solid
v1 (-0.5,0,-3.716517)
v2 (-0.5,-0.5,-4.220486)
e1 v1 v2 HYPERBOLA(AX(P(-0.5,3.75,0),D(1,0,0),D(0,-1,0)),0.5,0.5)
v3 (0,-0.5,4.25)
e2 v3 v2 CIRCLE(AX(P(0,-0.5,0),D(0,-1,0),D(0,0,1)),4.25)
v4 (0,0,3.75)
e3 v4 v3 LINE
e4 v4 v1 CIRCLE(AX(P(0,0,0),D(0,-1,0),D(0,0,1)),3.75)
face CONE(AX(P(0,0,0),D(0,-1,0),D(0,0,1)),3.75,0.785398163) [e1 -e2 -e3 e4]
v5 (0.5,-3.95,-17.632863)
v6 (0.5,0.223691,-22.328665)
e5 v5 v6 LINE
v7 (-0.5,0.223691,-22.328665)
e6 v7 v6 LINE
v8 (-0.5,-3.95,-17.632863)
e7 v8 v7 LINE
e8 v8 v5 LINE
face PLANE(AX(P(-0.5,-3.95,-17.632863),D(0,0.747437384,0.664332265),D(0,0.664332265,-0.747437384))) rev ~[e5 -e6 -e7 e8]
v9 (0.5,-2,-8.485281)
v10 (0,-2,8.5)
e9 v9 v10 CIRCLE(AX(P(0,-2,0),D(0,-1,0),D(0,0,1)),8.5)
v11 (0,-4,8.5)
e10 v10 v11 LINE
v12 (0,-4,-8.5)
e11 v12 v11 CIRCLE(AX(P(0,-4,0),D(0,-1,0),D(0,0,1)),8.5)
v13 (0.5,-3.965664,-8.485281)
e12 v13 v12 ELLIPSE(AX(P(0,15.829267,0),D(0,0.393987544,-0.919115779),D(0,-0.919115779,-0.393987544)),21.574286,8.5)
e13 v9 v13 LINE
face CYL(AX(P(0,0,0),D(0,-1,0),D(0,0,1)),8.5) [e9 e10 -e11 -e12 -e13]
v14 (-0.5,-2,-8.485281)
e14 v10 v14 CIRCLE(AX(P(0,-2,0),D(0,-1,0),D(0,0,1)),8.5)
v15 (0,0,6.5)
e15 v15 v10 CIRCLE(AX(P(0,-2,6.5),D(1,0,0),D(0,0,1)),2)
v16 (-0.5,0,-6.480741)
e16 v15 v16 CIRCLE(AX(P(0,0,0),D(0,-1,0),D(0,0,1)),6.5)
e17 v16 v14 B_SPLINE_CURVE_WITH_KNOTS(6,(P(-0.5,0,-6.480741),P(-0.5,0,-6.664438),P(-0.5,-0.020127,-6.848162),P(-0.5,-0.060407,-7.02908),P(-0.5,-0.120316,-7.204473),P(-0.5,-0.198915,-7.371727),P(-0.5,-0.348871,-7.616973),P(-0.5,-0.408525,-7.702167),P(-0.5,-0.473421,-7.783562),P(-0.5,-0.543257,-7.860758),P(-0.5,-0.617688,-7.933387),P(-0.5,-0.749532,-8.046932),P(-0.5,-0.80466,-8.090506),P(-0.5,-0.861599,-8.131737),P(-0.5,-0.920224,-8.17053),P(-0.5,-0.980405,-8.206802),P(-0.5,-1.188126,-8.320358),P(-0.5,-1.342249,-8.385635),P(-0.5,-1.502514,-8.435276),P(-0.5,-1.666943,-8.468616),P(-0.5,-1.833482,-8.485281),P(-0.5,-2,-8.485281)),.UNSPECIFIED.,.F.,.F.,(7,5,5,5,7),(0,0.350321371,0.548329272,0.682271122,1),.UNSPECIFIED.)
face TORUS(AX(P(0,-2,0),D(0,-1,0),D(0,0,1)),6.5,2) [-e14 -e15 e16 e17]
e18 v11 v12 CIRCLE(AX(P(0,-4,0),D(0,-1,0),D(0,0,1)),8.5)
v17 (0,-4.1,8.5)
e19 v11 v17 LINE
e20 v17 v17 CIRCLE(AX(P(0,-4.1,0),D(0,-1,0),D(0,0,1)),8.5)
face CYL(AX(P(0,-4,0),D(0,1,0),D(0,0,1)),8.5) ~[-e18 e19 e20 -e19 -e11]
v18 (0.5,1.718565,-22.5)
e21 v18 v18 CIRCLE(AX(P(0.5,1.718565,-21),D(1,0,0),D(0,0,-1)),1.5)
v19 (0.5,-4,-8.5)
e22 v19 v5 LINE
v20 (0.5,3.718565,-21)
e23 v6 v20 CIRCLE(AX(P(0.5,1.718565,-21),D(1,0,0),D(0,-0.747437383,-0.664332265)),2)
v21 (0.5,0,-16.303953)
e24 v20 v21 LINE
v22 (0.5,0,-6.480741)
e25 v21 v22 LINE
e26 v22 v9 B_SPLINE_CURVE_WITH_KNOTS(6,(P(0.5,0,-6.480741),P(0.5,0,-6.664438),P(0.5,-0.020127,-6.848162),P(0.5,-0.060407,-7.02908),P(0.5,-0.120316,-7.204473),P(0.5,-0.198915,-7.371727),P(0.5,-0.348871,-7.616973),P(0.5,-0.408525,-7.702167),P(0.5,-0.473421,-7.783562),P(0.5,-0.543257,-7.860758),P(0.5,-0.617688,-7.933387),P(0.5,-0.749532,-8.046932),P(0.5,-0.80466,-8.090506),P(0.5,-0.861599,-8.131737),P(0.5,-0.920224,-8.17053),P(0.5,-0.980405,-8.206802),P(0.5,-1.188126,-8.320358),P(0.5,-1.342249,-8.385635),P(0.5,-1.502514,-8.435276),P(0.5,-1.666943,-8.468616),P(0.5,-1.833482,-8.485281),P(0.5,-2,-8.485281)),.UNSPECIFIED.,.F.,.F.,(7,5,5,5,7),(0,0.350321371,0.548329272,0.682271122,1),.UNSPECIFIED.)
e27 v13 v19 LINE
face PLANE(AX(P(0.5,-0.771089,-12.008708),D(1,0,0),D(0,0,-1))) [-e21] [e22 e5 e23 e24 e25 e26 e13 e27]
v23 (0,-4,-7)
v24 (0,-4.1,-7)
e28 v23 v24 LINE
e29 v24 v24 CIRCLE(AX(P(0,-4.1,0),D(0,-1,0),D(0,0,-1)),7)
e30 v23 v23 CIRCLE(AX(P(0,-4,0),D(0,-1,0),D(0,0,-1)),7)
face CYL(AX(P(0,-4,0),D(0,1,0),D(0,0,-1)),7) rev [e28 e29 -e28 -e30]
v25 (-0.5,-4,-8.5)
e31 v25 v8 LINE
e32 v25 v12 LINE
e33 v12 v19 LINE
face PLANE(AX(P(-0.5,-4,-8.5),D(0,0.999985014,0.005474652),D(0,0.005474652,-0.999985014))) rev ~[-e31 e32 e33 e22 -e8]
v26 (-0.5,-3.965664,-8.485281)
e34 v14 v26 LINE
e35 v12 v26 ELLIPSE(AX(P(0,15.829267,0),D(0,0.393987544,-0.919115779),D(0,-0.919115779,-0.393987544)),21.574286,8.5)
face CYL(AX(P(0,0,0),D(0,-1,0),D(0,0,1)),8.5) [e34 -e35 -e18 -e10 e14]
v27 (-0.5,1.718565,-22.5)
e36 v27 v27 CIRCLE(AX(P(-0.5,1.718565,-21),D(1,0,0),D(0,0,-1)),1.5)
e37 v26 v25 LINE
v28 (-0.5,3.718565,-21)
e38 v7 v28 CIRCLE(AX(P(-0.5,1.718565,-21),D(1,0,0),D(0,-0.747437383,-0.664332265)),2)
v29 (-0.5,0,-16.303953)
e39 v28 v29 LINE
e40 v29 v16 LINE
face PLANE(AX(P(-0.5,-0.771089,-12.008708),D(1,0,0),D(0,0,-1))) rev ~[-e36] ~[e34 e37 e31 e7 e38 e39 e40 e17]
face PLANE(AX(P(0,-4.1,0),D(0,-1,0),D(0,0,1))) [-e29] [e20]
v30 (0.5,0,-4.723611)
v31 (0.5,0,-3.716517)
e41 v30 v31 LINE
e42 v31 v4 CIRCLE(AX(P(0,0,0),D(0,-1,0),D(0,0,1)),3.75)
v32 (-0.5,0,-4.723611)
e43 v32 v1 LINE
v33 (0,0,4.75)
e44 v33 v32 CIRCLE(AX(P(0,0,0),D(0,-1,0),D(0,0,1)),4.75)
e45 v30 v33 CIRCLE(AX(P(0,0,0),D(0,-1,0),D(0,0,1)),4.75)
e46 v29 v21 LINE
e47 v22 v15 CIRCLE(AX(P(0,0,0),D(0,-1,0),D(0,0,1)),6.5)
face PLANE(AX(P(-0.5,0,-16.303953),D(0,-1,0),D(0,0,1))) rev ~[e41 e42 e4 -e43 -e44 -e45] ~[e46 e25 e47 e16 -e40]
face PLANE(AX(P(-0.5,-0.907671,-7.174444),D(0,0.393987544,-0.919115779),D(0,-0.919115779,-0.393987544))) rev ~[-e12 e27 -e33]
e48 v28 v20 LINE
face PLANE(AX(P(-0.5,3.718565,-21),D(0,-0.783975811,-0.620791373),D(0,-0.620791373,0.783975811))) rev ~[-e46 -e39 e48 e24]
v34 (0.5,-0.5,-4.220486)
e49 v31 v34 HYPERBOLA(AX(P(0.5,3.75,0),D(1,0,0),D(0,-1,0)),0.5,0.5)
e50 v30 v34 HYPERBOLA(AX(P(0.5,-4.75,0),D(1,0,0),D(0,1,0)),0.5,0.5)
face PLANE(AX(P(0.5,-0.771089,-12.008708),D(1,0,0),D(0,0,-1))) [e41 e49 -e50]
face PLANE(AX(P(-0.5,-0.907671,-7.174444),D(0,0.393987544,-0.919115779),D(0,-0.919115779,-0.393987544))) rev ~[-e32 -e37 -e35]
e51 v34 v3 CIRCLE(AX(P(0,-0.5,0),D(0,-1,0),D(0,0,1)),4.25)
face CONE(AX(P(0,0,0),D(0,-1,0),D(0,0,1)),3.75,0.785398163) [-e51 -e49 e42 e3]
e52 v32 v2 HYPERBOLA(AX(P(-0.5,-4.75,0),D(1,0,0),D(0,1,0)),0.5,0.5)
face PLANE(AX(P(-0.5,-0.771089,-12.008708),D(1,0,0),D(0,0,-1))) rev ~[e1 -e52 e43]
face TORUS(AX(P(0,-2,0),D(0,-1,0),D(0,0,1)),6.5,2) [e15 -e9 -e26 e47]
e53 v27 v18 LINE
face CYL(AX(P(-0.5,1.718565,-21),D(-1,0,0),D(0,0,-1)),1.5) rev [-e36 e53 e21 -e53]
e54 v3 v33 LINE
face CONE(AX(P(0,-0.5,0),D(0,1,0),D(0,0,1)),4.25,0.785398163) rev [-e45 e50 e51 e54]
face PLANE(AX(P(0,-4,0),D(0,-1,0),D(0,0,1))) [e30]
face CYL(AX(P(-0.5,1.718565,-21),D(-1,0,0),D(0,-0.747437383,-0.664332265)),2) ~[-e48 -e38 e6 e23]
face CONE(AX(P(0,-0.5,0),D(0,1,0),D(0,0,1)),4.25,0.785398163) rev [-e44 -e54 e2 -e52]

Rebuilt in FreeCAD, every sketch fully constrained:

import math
import FreeCAD as App
import Part
import Sketcher
from FreeCAD import Vector


def edges_at(feature, points):
    """Names of the edges that pass closest to the given points."""
    edges = feature.Shape.Edges
    near = lambda p: min(range(len(edges)), key=lambda i: edges[i].distToShape(Part.Vertex(*p))[0])
    return sorted({f"Edge{near(p) + 1}" for p in points})

doc = App.newDocument("Part")
body = doc.addObject("PartDesign::Body", "Body")

# Sketch on YZ plane
sketch1 = doc.addObject("Sketcher::SketchObject", "Sketch")
body.addObject(sketch1)
sketch1.AttachmentSupport = (doc.YZ_Plane, [""])
sketch1.MapMode = "FlatFace"
sketch1.addGeometry([
    Part.LineSegment(Vector(0, 0, 0), Vector(0, 3.8, 0)),  # 0
    Part.LineSegment(Vector(0, 3.8, 0), Vector(-0.5, 4.2, 0)),  # 1
    Part.LineSegment(Vector(-0.5, 4.2, 0), Vector(0, 4.8, 0)),  # 2
    Part.LineSegment(Vector(0, 4.8, 0), Vector(0, 8.5, 0)),  # 3
    Part.LineSegment(Vector(0, 8.5, 0), Vector(-4, 8.5, 0)),  # 4
    Part.LineSegment(Vector(-4, 8.5, 0), Vector(-4, 0, 0)),  # 5
    Part.LineSegment(Vector(-4, 0, 0), Vector(0, 0, 0)),  # 6
], False)
sketch1.addConstraint([
    Sketcher.Constraint("Coincident", 0, 2, 1, 1),
    Sketcher.Constraint("Coincident", 1, 2, 2, 1),
    Sketcher.Constraint("Coincident", 2, 2, 3, 1),
    Sketcher.Constraint("Coincident", 3, 2, 4, 1),
    Sketcher.Constraint("Coincident", 4, 2, 5, 1),
    Sketcher.Constraint("Coincident", 5, 2, 6, 1),
    Sketcher.Constraint("Coincident", 6, 2, 0, 1),
    Sketcher.Constraint("Vertical", 0),
    Sketcher.Constraint("Vertical", 3),
    Sketcher.Constraint("Horizontal", 4),
    Sketcher.Constraint("Vertical", 5),
    Sketcher.Constraint("Horizontal", 6),
    Sketcher.Constraint("Coincident", 6, 2, -1, 1),
    Sketcher.Constraint("PointOnObject", 2, 2, -2),
    Sketcher.Constraint("Perpendicular", 1, 2),
    Sketcher.Constraint("Equal", 0, 3),
    Sketcher.Constraint("Equal", 1, 2),
    Sketcher.Constraint("DistanceX", 4, 2, 4, 1, 4.0),
    Sketcher.Constraint("DistanceY", 5, 2, 5, 1, 8.5),
    Sketcher.Constraint("DistanceY", 0, 2, 2, 2, 1.0),
])
revolution = doc.addObject("PartDesign::Revolution", "Revolution")
body.addObject(revolution)
revolution.Profile = sketch1
revolution.ReferenceAxis = (sketch1, ["H_Axis"])
revolution.Angle = 360
doc.recompute()

fillet = doc.addObject("PartDesign::Fillet", "Fillet")
body.addObject(fillet)
fillet.Base = (revolution, edges_at(revolution, [(0, 0, -8.5)]))
fillet.Radius = 2
body2 = doc.addObject("PartDesign::Body", "Body001")

# Sketch on XZ plane
sketch2 = doc.addObject("Sketcher::SketchObject", "Sketch001")
body2.addObject(sketch2)
sketch2.AttachmentSupport = (doc.getObject("XZ_Plane001"), [""])
sketch2.MapMode = "FlatFace"
sketch2.AttachmentOffset = App.Placement(Vector(0, 0, 4), App.Rotation())
sketch2.addGeometry([
    Part.Circle(Vector(0, 0, 0), Vector(0, 0, 1), 8),
    Part.Circle(Vector(0, 0, 0), Vector(0, 0, 1), 7),
], False)
sketch2.addConstraint([
    Sketcher.Constraint("Coincident", 0, 3, -1, 1),
    Sketcher.Constraint("Coincident", 1, 3, -1, 1),
    Sketcher.Constraint("Diameter", 0, 17.0),
    Sketcher.Constraint("Diameter", 1, 14.0),
])
pad1 = doc.addObject("PartDesign::Pad", "Pad")
body2.addObject(pad1)
pad1.Profile = sketch2
pad1.Length = 0.1
doc.recompute()

boolean = doc.addObject("PartDesign::Boolean", "Boolean")
body.addObject(boolean)
boolean.Type = "Fuse"
boolean.addObjects([body2])

# Sketch on YZ plane
sketch3 = doc.addObject("Sketcher::SketchObject", "Sketch002")
body.addObject(sketch3)
sketch3.AttachmentSupport = (doc.YZ_Plane, [""])
sketch3.MapMode = "FlatFace"
sketch3.addGeometry([
    Part.LineSegment(Vector(0, -16.3, 0), Vector(0, 0, 0)),  # 0
    Part.LineSegment(Vector(0, 0, 0), Vector(-0.9, 0, 0)),  # 1
    Part.LineSegment(Vector(-0.9, 0, 0), Vector(-0.9, -7.2, 0)),  # 2
    Part.LineSegment(Vector(-0.9, -7.2, 0), Vector(-4, -8.5, 0)),  # 3
    Part.LineSegment(Vector(-4, -8.5, 0), Vector(-4, -17.6, 0)),  # 4
    Part.LineSegment(Vector(-4, -17.6, 0), Vector(0.2, -22.3, 0)),  # 5
    Part.ArcOfCircle(Part.Circle(Vector(1.7, -21, 0), Vector(0, 0, 1), 2), math.radians(-138), math.radians(0)),  # 6
    Part.LineSegment(Vector(3.7, -21, 0), Vector(0, -16.3, 0)),  # 7
    Part.Circle(Vector(1.7, -21, 0), Vector(0, 0, 1), 1.5),  # 8
], False)
sketch3.addConstraint([
    Sketcher.Constraint("Coincident", 0, 2, 1, 1),
    Sketcher.Constraint("Coincident", 1, 2, 2, 1),
    Sketcher.Constraint("Coincident", 2, 2, 3, 1),
    Sketcher.Constraint("Coincident", 3, 2, 4, 1),
    Sketcher.Constraint("Coincident", 4, 2, 5, 1),
    Sketcher.Constraint("Tangent", 5, 2, 6, 1),
    Sketcher.Constraint("Coincident", 6, 2, 7, 1),
    Sketcher.Constraint("Coincident", 7, 2, 0, 1),
    Sketcher.Constraint("Vertical", 0),
    Sketcher.Constraint("Horizontal", 1),
    Sketcher.Constraint("Vertical", 2),
    Sketcher.Constraint("Coincident", 0, 2, -1, 1),
    Sketcher.Constraint("Coincident", 8, 3, 6, 3),
    Sketcher.Constraint("Horizontal", 8, 3, 6, 2),
    Sketcher.Constraint("Diameter", 8, 3.0),
    Sketcher.Constraint("Radius", 6, 2.0),
    Sketcher.Constraint("DistanceY", 6, 3, -1, 1, 21.0),
    Sketcher.Constraint("DistanceX", 3, 2, -1, 1, 4.0),
    Sketcher.Constraint("DistanceY", 3, 2, -1, 1, 8.5),
    Sketcher.Constraint("DistanceX", 4, 2, -1, 1, 3.95),
    Sketcher.Constraint("Distance", 4, 9.133),
    Sketcher.Constraint("DistanceX", 1, 2, 1, 1, 0.907671),
    Sketcher.Constraint("DistanceY", 5, 2, 4, 2, 4.695801),
    Sketcher.Constraint("Distance", 3, 3.364461),
    Sketcher.Constraint("Distance", 7, 5.99004),
])
pad2 = doc.addObject("PartDesign::Pad", "Pad001")
body.addObject(pad2)
pad2.Profile = sketch3
pad2.Type = "TwoLengths"
pad2.Length = 0.5
pad2.Length2 = 0.5

doc.recompute()
